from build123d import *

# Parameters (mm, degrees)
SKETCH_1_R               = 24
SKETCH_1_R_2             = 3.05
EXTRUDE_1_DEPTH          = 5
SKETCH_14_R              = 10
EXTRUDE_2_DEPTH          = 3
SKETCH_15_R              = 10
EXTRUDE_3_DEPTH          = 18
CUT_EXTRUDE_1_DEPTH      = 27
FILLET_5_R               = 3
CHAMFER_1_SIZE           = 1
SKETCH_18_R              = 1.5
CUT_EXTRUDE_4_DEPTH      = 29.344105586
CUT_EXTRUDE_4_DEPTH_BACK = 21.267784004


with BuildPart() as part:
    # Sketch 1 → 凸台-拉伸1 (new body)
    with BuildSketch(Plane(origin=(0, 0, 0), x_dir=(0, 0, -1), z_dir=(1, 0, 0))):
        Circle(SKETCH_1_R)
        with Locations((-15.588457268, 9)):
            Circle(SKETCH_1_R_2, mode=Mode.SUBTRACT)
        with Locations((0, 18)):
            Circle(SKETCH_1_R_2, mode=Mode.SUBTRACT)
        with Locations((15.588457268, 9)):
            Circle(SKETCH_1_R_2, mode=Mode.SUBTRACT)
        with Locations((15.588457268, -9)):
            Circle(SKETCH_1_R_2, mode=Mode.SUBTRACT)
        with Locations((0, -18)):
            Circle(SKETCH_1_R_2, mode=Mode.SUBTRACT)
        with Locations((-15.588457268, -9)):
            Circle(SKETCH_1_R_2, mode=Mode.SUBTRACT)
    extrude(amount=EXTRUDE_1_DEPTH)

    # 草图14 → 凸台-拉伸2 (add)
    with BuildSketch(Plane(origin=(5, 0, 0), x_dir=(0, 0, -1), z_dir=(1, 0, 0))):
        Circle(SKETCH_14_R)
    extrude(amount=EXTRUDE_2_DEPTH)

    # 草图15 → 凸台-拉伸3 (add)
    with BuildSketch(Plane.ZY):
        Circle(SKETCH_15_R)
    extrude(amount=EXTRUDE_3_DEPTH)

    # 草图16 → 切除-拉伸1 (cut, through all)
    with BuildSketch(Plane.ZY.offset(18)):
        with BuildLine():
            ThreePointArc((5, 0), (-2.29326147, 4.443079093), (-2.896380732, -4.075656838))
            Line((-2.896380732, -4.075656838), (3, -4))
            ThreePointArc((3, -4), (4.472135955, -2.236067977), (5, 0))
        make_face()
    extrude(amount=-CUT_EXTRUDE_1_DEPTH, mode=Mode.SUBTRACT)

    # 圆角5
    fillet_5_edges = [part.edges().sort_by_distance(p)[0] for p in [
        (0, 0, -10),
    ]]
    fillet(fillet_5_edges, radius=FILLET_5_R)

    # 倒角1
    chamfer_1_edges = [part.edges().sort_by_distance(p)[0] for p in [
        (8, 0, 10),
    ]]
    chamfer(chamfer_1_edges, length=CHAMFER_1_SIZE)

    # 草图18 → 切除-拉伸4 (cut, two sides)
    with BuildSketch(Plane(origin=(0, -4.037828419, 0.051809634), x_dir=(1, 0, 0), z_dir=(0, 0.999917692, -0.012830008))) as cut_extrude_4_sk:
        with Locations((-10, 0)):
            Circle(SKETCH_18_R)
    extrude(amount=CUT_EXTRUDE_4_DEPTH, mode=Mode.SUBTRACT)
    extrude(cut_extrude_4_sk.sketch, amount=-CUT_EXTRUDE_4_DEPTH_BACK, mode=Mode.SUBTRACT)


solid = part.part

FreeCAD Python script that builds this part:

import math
import FreeCAD as App
import Part
import Sketcher

V = App.Vector


def edges_at(feature, points):
    """Names of the edges that pass closest to the given points."""
    edges = feature.Shape.Edges
    near = lambda p: min(range(len(edges)), key=lambda i: edges[i].distToShape(Part.Vertex(*p))[0])
    return sorted({f"Edge{near(p) + 1}" for p in points})

doc = App.newDocument("Part")
params = doc.addObject("Spreadsheet::Sheet", "Params")
for row, (alias, value) in enumerate([
    ("sketch1_diameter", "48 mm"),
    ("sketch1_diameter2", "6.1 mm"),
    ("pad1_length", "5 mm"),
    ("sketch2_diameter", "20 mm"),
    ("pad2_length", "3 mm"),
    ("sketch3_diameter", "20 mm"),
    ("pad3_length", "18 mm"),
    ("sketch4_radius", "5 mm"),
    ("fillet_radius", "3 mm"),
    ("chamfer_size", "1 mm"),
    ("sketch5_diameter", "3 mm"),
], start=1):
    params.set(f"A{row}", alias)
    params.set(f"B{row}", "=" + value)
    params.setAlias(f"B{row}", alias)

body = doc.addObject("PartDesign::Body", "Body")

sketch1 = body.newObject("Sketcher::SketchObject", "Sketch")
sketch1.AttachmentSupport = (doc.getObject("YZ_Plane"), [""])
sketch1.MapMode = "FlatFace"
sketch1.addGeometry([
    Part.Circle(V(0, 0, 0), V(0, 0, 1), 24),
    Part.Circle(V(-18, 0, 0), V(0, 0, 1), 3),
    Part.Circle(V(-9, 15.6, 0), V(0, 0, 1), 3),
    Part.Circle(V(-9, -15.6, 0), V(0, 0, 1), 3),
    Part.Circle(V(9, 15.6, 0), V(0, 0, 1), 3),
    Part.Circle(V(18, 0, 0), V(0, 0, 1), 3),
    Part.Circle(V(9, -15.6, 0), V(0, 0, 1), 3),
], False)
sketch1.addConstraint([
    Sketcher.Constraint("Coincident", 0, 3, -1, 1),
    Sketcher.Constraint("Equal", 1, 2),
    Sketcher.Constraint("Equal", 2, 3),
    Sketcher.Constraint("Equal", 3, 4),
    Sketcher.Constraint("Equal", 4, 5),
    Sketcher.Constraint("Equal", 5, 6),
    Sketcher.Constraint("Symmetric", 3, 3, 4, 3, -1, 1),
    Sketcher.Constraint("Symmetric", 1, 3, 5, 3, -1, 1),
    Sketcher.Constraint("Symmetric", 2, 3, 6, 3, -1, 1),
    Sketcher.Constraint("Symmetric", 2, 3, 4, 3, -2),
    Sketcher.Constraint("PointOnObject", 1, 3, -1),
    Sketcher.Constraint("Diameter", 0, 48.0),
    Sketcher.Constraint("Diameter", 1, 6.1),
    Sketcher.Constraint("DistanceX", 1, 3, -1, 1, 18.0),
    Sketcher.Constraint("DistanceX", 2, 3, -1, 1, 9.0),
    Sketcher.Constraint("DistanceY", -1, 1, 2, 3, 15.588457),
])
sketch1.setExpression("Constraints[11]", "Params.sketch1_diameter")
sketch1.setExpression("Constraints[12]", "Params.sketch1_diameter2")
pad1 = body.newObject("PartDesign::Pad", "Pad")
pad1.Profile = sketch1
pad1.setExpression("Length", "Params.pad1_length")

sketch2 = body.newObject("Sketcher::SketchObject", "Sketch001")
sketch2.AttachmentSupport = (doc.getObject("YZ_Plane"), [""])
sketch2.MapMode = "FlatFace"
sketch2.AttachmentOffset = App.Placement(V(0, 0, 5), App.Rotation())
sketch2.addGeometry(Part.Circle(V(0, 0, 0), V(0, 0, 1), 10), False)
sketch2.addConstraint([
    Sketcher.Constraint("Coincident", 0, 3, -1, 1),
    Sketcher.Constraint("Diameter", 0, 20.0),
])
sketch2.setExpression("Constraints[1]", "Params.sketch2_diameter")
pad2 = body.newObject("PartDesign::Pad", "Pad001")
pad2.Profile = sketch2
pad2.setExpression("Length", "Params.pad2_length")

sketch3 = body.newObject("Sketcher::SketchObject", "Sketch002")
sketch3.AttachmentSupport = (doc.getObject("YZ_Plane"), [""])
sketch3.MapMode = "FlatFace"
sketch3.addGeometry(Part.Circle(V(0, 0, 0), V(0, 0, 1), 10), False)
sketch3.addConstraint([
    Sketcher.Constraint("Coincident", 0, 3, -1, 1),
    Sketcher.Constraint("Diameter", 0, 20.0),
])
sketch3.setExpression("Constraints[1]", "Params.sketch3_diameter")
pad3 = body.newObject("PartDesign::Pad", "Pad002")
pad3.Profile = sketch3
pad3.setExpression("Length", "Params.pad3_length")
pad3.Reversed = True

sketch4 = body.newObject("Sketcher::SketchObject", "Sketch003")
sketch4.AttachmentSupport = (doc.getObject("YZ_Plane"), [""])
sketch4.MapMode = "FlatFace"
sketch4.AttachmentOffset = App.Placement(V(0, 0, -18), App.Rotation())
sketch4.addGeometry([
    Part.ArcOfCircle(Part.Circle(V(0, 0, 0), V(0, 0, 1), 5), math.radians(-145), math.radians(90)),
    Part.LineSegment(V(-4.1, -2.9, 0), V(-4, 3, 0)),
    Part.ArcOfCircle(Part.Circle(V(0, 0, 0), V(0, 0, 1), 5), math.radians(90), math.radians(143)),
], False)
sketch4.addConstraint([
    Sketcher.Constraint("Coincident", 0, 1, 1, 1),
    Sketcher.Constraint("Coincident", 1, 2, 2, 2),
    Sketcher.Constraint("Tangent", 2, 1, 0, 2),
    Sketcher.Constraint("Coincident", 0, 3, -1, 1),
    Sketcher.Constraint("Equal", 0, 2),
    Sketcher.Constraint("PointOnObject", 2, 1, -2),
    Sketcher.Constraint("Radius", 0, 5.0),
    Sketcher.Constraint("DistanceX", 1, 2, -1, 1, 4.0),
    Sketcher.Constraint("DistanceY", 0, 1, -1, 1, 2.896381),
])
sketch4.setExpression("Constraints[6]", "Params.sketch4_radius")
pocket1 = body.newObject("PartDesign::Pocket", "Pocket")
pocket1.Profile = sketch4
pocket1.Type = "ThroughAll"
pocket1.Reversed = True
doc.recompute()

fillet = body.newObject("PartDesign::Fillet", "Fillet")
fillet.Base = (pocket1, edges_at(pocket1, [(0, 0, -10)]))
fillet.setExpression("Radius", "Params.fillet_radius")
doc.recompute()

chamfer = body.newObject("PartDesign::Chamfer", "Chamfer")
chamfer.Base = (fillet, edges_at(fillet, [(8, 0, 10)]))
chamfer.setExpression("Size", "Params.chamfer_size")

sketch5 = body.newObject("Sketcher::SketchObject", "Sketch004")
sketch5.Placement = App.Placement(V(0, -4.037828, 0.05181), App.Rotation(V(1, 0, 0), V(0, -0.012830008, -0.999917692), V(0, 0.999917692, -0.012830008), "ZXY"))
sketch5.addGeometry(Part.Circle(V(-10, 0, 0), V(0, 0, 1), 1.5), False)
sketch5.addConstraint([
    Sketcher.Constraint("PointOnObject", 0, 3, -1),
    Sketcher.Constraint("Diameter", 0, 3.0),
    Sketcher.Constraint("DistanceX", 0, 3, -1, 1, 10.0),
])
sketch5.setExpression("Constraints[1]", "Params.sketch5_diameter")
pocket2 = body.newObject("PartDesign::Pocket", "Pocket001")
pocket2.Profile = sketch5
pocket2.Type = "ThroughAll"
pocket2.Midplane = True

doc.recompute()
